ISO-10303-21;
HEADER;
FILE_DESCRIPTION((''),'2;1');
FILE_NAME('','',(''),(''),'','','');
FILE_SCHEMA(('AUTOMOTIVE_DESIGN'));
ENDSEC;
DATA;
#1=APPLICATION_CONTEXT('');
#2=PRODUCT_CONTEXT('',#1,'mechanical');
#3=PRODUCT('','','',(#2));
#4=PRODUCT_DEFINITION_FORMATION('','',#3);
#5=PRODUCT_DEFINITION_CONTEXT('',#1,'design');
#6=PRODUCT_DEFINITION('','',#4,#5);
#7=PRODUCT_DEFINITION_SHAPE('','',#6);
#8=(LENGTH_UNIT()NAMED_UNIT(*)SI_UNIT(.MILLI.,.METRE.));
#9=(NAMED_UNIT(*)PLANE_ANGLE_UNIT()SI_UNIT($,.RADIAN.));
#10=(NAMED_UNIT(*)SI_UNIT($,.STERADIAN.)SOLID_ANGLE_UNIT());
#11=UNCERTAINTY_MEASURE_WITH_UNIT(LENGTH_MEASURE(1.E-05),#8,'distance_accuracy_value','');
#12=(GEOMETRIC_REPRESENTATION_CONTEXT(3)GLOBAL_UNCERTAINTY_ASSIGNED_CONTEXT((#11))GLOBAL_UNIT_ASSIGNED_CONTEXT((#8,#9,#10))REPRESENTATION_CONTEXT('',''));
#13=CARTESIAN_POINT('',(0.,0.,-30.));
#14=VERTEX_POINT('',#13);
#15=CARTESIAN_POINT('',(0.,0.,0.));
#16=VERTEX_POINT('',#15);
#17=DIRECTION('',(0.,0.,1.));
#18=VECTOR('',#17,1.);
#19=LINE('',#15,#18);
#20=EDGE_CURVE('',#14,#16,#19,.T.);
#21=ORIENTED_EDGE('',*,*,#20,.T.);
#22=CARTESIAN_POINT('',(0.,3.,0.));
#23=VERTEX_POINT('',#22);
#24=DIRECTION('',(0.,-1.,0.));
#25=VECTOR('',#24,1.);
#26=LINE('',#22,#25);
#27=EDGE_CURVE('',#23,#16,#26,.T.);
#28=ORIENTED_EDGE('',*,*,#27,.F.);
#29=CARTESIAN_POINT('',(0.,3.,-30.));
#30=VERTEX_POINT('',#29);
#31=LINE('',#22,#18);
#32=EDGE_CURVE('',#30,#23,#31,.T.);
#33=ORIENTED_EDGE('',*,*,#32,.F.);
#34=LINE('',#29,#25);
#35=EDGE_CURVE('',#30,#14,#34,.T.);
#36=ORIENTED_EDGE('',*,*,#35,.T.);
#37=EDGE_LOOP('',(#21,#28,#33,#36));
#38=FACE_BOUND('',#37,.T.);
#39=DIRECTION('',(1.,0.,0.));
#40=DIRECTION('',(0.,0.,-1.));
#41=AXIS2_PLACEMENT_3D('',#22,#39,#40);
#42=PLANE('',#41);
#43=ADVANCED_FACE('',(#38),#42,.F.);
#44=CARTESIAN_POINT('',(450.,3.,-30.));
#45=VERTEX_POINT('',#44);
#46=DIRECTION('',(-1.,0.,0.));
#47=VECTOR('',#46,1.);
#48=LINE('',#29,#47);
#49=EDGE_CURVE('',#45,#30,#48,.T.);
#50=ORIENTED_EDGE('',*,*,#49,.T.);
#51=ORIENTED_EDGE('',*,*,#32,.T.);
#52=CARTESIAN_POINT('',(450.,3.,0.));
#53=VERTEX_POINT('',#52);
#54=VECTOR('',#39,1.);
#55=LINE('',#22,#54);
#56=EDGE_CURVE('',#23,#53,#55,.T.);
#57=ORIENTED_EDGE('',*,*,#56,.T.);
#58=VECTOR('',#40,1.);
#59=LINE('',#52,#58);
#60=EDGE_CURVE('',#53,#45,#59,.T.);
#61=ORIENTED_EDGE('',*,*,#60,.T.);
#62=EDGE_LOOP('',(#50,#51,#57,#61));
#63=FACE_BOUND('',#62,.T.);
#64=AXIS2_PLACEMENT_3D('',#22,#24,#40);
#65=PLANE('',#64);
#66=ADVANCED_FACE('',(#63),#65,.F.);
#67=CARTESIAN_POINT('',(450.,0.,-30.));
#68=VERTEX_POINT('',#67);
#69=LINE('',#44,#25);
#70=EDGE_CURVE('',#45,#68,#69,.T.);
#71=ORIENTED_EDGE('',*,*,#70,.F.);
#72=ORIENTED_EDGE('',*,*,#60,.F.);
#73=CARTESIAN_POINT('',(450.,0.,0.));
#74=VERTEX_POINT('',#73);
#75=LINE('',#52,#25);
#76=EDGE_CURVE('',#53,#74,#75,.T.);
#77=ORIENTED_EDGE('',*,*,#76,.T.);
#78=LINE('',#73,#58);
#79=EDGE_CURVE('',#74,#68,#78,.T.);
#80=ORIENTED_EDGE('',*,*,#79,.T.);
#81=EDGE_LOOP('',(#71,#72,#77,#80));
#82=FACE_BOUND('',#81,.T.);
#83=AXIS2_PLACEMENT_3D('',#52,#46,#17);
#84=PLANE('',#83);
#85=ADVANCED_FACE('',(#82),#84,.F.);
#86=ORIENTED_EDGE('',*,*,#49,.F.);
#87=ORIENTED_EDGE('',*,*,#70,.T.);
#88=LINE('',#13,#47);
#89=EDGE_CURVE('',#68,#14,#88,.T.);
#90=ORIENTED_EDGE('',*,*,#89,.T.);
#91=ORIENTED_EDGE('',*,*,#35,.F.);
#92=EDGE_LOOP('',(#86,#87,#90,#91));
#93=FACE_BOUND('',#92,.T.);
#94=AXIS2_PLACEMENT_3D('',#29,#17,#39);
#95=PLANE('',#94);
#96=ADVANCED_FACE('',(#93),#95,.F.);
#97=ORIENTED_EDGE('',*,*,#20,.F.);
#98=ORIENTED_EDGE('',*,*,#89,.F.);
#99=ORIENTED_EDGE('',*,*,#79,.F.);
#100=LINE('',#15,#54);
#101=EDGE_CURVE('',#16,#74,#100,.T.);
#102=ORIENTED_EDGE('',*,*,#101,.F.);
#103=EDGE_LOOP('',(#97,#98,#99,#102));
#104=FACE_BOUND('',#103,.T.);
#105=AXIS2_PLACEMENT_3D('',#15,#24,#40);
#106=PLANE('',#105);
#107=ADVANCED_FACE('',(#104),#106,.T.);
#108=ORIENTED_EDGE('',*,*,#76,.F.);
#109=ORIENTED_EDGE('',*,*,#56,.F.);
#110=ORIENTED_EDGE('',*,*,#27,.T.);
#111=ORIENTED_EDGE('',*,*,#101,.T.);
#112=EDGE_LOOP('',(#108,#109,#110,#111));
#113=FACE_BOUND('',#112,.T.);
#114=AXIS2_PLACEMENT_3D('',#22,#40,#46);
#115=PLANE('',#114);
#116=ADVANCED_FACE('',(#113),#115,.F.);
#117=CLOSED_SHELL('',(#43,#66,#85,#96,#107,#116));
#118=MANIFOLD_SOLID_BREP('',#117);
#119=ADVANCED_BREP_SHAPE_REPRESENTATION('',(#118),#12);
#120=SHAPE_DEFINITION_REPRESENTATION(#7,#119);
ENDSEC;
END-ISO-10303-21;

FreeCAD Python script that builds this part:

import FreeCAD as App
import Part
import Sketcher
Q = App.Units.Quantity


def add_polygon(sketch, points):
    """Adds a closed chain of lines whose ends are joined by coincident constraints."""
    first, n = sketch.GeometryCount, len(points)
    for a, b in zip(points, points[1:] + points[:1]):
        sketch.addGeometry(Part.LineSegment(App.Vector(*a, 0), App.Vector(*b, 0)), False)
    for i in range(n):
        sketch.addConstraint(Sketcher.Constraint("Coincident", first + i, 2, first + (i + 1) % n, 1))

doc = App.newDocument("Part")
body = doc.addObject("PartDesign::Body", "Body")

# Sketch on XZ plane
sketch1 = body.newObject("Sketcher::SketchObject", "Sketch")
sketch1.AttachmentSupport = (doc.getObject("XZ_Plane"), [""])
sketch1.MapMode = "FlatFace"
add_polygon(sketch1, [(0, -30), (0, 0), (450, 0), (450, -30)])  # lines 0-3
sketch1.addConstraint([
    Sketcher.Constraint("Vertical", 0),
    Sketcher.Constraint("Horizontal", 1),
    Sketcher.Constraint("Vertical", 2),
    Sketcher.Constraint("Horizontal", 3),
    Sketcher.Constraint("Coincident", 0, 2, -1, 1),
    Sketcher.Constraint("DistanceX", 1, 1, 1, 2, Q("450 mm")),
    Sketcher.Constraint("DistanceY", 0, 1, 0, 2, Q("30 mm")),
])
pad1 = body.newObject("PartDesign::Pad", "Pad")
pad1.Profile = sketch1
pad1.Length = 3
pad1.Reversed = True

doc.recompute()
